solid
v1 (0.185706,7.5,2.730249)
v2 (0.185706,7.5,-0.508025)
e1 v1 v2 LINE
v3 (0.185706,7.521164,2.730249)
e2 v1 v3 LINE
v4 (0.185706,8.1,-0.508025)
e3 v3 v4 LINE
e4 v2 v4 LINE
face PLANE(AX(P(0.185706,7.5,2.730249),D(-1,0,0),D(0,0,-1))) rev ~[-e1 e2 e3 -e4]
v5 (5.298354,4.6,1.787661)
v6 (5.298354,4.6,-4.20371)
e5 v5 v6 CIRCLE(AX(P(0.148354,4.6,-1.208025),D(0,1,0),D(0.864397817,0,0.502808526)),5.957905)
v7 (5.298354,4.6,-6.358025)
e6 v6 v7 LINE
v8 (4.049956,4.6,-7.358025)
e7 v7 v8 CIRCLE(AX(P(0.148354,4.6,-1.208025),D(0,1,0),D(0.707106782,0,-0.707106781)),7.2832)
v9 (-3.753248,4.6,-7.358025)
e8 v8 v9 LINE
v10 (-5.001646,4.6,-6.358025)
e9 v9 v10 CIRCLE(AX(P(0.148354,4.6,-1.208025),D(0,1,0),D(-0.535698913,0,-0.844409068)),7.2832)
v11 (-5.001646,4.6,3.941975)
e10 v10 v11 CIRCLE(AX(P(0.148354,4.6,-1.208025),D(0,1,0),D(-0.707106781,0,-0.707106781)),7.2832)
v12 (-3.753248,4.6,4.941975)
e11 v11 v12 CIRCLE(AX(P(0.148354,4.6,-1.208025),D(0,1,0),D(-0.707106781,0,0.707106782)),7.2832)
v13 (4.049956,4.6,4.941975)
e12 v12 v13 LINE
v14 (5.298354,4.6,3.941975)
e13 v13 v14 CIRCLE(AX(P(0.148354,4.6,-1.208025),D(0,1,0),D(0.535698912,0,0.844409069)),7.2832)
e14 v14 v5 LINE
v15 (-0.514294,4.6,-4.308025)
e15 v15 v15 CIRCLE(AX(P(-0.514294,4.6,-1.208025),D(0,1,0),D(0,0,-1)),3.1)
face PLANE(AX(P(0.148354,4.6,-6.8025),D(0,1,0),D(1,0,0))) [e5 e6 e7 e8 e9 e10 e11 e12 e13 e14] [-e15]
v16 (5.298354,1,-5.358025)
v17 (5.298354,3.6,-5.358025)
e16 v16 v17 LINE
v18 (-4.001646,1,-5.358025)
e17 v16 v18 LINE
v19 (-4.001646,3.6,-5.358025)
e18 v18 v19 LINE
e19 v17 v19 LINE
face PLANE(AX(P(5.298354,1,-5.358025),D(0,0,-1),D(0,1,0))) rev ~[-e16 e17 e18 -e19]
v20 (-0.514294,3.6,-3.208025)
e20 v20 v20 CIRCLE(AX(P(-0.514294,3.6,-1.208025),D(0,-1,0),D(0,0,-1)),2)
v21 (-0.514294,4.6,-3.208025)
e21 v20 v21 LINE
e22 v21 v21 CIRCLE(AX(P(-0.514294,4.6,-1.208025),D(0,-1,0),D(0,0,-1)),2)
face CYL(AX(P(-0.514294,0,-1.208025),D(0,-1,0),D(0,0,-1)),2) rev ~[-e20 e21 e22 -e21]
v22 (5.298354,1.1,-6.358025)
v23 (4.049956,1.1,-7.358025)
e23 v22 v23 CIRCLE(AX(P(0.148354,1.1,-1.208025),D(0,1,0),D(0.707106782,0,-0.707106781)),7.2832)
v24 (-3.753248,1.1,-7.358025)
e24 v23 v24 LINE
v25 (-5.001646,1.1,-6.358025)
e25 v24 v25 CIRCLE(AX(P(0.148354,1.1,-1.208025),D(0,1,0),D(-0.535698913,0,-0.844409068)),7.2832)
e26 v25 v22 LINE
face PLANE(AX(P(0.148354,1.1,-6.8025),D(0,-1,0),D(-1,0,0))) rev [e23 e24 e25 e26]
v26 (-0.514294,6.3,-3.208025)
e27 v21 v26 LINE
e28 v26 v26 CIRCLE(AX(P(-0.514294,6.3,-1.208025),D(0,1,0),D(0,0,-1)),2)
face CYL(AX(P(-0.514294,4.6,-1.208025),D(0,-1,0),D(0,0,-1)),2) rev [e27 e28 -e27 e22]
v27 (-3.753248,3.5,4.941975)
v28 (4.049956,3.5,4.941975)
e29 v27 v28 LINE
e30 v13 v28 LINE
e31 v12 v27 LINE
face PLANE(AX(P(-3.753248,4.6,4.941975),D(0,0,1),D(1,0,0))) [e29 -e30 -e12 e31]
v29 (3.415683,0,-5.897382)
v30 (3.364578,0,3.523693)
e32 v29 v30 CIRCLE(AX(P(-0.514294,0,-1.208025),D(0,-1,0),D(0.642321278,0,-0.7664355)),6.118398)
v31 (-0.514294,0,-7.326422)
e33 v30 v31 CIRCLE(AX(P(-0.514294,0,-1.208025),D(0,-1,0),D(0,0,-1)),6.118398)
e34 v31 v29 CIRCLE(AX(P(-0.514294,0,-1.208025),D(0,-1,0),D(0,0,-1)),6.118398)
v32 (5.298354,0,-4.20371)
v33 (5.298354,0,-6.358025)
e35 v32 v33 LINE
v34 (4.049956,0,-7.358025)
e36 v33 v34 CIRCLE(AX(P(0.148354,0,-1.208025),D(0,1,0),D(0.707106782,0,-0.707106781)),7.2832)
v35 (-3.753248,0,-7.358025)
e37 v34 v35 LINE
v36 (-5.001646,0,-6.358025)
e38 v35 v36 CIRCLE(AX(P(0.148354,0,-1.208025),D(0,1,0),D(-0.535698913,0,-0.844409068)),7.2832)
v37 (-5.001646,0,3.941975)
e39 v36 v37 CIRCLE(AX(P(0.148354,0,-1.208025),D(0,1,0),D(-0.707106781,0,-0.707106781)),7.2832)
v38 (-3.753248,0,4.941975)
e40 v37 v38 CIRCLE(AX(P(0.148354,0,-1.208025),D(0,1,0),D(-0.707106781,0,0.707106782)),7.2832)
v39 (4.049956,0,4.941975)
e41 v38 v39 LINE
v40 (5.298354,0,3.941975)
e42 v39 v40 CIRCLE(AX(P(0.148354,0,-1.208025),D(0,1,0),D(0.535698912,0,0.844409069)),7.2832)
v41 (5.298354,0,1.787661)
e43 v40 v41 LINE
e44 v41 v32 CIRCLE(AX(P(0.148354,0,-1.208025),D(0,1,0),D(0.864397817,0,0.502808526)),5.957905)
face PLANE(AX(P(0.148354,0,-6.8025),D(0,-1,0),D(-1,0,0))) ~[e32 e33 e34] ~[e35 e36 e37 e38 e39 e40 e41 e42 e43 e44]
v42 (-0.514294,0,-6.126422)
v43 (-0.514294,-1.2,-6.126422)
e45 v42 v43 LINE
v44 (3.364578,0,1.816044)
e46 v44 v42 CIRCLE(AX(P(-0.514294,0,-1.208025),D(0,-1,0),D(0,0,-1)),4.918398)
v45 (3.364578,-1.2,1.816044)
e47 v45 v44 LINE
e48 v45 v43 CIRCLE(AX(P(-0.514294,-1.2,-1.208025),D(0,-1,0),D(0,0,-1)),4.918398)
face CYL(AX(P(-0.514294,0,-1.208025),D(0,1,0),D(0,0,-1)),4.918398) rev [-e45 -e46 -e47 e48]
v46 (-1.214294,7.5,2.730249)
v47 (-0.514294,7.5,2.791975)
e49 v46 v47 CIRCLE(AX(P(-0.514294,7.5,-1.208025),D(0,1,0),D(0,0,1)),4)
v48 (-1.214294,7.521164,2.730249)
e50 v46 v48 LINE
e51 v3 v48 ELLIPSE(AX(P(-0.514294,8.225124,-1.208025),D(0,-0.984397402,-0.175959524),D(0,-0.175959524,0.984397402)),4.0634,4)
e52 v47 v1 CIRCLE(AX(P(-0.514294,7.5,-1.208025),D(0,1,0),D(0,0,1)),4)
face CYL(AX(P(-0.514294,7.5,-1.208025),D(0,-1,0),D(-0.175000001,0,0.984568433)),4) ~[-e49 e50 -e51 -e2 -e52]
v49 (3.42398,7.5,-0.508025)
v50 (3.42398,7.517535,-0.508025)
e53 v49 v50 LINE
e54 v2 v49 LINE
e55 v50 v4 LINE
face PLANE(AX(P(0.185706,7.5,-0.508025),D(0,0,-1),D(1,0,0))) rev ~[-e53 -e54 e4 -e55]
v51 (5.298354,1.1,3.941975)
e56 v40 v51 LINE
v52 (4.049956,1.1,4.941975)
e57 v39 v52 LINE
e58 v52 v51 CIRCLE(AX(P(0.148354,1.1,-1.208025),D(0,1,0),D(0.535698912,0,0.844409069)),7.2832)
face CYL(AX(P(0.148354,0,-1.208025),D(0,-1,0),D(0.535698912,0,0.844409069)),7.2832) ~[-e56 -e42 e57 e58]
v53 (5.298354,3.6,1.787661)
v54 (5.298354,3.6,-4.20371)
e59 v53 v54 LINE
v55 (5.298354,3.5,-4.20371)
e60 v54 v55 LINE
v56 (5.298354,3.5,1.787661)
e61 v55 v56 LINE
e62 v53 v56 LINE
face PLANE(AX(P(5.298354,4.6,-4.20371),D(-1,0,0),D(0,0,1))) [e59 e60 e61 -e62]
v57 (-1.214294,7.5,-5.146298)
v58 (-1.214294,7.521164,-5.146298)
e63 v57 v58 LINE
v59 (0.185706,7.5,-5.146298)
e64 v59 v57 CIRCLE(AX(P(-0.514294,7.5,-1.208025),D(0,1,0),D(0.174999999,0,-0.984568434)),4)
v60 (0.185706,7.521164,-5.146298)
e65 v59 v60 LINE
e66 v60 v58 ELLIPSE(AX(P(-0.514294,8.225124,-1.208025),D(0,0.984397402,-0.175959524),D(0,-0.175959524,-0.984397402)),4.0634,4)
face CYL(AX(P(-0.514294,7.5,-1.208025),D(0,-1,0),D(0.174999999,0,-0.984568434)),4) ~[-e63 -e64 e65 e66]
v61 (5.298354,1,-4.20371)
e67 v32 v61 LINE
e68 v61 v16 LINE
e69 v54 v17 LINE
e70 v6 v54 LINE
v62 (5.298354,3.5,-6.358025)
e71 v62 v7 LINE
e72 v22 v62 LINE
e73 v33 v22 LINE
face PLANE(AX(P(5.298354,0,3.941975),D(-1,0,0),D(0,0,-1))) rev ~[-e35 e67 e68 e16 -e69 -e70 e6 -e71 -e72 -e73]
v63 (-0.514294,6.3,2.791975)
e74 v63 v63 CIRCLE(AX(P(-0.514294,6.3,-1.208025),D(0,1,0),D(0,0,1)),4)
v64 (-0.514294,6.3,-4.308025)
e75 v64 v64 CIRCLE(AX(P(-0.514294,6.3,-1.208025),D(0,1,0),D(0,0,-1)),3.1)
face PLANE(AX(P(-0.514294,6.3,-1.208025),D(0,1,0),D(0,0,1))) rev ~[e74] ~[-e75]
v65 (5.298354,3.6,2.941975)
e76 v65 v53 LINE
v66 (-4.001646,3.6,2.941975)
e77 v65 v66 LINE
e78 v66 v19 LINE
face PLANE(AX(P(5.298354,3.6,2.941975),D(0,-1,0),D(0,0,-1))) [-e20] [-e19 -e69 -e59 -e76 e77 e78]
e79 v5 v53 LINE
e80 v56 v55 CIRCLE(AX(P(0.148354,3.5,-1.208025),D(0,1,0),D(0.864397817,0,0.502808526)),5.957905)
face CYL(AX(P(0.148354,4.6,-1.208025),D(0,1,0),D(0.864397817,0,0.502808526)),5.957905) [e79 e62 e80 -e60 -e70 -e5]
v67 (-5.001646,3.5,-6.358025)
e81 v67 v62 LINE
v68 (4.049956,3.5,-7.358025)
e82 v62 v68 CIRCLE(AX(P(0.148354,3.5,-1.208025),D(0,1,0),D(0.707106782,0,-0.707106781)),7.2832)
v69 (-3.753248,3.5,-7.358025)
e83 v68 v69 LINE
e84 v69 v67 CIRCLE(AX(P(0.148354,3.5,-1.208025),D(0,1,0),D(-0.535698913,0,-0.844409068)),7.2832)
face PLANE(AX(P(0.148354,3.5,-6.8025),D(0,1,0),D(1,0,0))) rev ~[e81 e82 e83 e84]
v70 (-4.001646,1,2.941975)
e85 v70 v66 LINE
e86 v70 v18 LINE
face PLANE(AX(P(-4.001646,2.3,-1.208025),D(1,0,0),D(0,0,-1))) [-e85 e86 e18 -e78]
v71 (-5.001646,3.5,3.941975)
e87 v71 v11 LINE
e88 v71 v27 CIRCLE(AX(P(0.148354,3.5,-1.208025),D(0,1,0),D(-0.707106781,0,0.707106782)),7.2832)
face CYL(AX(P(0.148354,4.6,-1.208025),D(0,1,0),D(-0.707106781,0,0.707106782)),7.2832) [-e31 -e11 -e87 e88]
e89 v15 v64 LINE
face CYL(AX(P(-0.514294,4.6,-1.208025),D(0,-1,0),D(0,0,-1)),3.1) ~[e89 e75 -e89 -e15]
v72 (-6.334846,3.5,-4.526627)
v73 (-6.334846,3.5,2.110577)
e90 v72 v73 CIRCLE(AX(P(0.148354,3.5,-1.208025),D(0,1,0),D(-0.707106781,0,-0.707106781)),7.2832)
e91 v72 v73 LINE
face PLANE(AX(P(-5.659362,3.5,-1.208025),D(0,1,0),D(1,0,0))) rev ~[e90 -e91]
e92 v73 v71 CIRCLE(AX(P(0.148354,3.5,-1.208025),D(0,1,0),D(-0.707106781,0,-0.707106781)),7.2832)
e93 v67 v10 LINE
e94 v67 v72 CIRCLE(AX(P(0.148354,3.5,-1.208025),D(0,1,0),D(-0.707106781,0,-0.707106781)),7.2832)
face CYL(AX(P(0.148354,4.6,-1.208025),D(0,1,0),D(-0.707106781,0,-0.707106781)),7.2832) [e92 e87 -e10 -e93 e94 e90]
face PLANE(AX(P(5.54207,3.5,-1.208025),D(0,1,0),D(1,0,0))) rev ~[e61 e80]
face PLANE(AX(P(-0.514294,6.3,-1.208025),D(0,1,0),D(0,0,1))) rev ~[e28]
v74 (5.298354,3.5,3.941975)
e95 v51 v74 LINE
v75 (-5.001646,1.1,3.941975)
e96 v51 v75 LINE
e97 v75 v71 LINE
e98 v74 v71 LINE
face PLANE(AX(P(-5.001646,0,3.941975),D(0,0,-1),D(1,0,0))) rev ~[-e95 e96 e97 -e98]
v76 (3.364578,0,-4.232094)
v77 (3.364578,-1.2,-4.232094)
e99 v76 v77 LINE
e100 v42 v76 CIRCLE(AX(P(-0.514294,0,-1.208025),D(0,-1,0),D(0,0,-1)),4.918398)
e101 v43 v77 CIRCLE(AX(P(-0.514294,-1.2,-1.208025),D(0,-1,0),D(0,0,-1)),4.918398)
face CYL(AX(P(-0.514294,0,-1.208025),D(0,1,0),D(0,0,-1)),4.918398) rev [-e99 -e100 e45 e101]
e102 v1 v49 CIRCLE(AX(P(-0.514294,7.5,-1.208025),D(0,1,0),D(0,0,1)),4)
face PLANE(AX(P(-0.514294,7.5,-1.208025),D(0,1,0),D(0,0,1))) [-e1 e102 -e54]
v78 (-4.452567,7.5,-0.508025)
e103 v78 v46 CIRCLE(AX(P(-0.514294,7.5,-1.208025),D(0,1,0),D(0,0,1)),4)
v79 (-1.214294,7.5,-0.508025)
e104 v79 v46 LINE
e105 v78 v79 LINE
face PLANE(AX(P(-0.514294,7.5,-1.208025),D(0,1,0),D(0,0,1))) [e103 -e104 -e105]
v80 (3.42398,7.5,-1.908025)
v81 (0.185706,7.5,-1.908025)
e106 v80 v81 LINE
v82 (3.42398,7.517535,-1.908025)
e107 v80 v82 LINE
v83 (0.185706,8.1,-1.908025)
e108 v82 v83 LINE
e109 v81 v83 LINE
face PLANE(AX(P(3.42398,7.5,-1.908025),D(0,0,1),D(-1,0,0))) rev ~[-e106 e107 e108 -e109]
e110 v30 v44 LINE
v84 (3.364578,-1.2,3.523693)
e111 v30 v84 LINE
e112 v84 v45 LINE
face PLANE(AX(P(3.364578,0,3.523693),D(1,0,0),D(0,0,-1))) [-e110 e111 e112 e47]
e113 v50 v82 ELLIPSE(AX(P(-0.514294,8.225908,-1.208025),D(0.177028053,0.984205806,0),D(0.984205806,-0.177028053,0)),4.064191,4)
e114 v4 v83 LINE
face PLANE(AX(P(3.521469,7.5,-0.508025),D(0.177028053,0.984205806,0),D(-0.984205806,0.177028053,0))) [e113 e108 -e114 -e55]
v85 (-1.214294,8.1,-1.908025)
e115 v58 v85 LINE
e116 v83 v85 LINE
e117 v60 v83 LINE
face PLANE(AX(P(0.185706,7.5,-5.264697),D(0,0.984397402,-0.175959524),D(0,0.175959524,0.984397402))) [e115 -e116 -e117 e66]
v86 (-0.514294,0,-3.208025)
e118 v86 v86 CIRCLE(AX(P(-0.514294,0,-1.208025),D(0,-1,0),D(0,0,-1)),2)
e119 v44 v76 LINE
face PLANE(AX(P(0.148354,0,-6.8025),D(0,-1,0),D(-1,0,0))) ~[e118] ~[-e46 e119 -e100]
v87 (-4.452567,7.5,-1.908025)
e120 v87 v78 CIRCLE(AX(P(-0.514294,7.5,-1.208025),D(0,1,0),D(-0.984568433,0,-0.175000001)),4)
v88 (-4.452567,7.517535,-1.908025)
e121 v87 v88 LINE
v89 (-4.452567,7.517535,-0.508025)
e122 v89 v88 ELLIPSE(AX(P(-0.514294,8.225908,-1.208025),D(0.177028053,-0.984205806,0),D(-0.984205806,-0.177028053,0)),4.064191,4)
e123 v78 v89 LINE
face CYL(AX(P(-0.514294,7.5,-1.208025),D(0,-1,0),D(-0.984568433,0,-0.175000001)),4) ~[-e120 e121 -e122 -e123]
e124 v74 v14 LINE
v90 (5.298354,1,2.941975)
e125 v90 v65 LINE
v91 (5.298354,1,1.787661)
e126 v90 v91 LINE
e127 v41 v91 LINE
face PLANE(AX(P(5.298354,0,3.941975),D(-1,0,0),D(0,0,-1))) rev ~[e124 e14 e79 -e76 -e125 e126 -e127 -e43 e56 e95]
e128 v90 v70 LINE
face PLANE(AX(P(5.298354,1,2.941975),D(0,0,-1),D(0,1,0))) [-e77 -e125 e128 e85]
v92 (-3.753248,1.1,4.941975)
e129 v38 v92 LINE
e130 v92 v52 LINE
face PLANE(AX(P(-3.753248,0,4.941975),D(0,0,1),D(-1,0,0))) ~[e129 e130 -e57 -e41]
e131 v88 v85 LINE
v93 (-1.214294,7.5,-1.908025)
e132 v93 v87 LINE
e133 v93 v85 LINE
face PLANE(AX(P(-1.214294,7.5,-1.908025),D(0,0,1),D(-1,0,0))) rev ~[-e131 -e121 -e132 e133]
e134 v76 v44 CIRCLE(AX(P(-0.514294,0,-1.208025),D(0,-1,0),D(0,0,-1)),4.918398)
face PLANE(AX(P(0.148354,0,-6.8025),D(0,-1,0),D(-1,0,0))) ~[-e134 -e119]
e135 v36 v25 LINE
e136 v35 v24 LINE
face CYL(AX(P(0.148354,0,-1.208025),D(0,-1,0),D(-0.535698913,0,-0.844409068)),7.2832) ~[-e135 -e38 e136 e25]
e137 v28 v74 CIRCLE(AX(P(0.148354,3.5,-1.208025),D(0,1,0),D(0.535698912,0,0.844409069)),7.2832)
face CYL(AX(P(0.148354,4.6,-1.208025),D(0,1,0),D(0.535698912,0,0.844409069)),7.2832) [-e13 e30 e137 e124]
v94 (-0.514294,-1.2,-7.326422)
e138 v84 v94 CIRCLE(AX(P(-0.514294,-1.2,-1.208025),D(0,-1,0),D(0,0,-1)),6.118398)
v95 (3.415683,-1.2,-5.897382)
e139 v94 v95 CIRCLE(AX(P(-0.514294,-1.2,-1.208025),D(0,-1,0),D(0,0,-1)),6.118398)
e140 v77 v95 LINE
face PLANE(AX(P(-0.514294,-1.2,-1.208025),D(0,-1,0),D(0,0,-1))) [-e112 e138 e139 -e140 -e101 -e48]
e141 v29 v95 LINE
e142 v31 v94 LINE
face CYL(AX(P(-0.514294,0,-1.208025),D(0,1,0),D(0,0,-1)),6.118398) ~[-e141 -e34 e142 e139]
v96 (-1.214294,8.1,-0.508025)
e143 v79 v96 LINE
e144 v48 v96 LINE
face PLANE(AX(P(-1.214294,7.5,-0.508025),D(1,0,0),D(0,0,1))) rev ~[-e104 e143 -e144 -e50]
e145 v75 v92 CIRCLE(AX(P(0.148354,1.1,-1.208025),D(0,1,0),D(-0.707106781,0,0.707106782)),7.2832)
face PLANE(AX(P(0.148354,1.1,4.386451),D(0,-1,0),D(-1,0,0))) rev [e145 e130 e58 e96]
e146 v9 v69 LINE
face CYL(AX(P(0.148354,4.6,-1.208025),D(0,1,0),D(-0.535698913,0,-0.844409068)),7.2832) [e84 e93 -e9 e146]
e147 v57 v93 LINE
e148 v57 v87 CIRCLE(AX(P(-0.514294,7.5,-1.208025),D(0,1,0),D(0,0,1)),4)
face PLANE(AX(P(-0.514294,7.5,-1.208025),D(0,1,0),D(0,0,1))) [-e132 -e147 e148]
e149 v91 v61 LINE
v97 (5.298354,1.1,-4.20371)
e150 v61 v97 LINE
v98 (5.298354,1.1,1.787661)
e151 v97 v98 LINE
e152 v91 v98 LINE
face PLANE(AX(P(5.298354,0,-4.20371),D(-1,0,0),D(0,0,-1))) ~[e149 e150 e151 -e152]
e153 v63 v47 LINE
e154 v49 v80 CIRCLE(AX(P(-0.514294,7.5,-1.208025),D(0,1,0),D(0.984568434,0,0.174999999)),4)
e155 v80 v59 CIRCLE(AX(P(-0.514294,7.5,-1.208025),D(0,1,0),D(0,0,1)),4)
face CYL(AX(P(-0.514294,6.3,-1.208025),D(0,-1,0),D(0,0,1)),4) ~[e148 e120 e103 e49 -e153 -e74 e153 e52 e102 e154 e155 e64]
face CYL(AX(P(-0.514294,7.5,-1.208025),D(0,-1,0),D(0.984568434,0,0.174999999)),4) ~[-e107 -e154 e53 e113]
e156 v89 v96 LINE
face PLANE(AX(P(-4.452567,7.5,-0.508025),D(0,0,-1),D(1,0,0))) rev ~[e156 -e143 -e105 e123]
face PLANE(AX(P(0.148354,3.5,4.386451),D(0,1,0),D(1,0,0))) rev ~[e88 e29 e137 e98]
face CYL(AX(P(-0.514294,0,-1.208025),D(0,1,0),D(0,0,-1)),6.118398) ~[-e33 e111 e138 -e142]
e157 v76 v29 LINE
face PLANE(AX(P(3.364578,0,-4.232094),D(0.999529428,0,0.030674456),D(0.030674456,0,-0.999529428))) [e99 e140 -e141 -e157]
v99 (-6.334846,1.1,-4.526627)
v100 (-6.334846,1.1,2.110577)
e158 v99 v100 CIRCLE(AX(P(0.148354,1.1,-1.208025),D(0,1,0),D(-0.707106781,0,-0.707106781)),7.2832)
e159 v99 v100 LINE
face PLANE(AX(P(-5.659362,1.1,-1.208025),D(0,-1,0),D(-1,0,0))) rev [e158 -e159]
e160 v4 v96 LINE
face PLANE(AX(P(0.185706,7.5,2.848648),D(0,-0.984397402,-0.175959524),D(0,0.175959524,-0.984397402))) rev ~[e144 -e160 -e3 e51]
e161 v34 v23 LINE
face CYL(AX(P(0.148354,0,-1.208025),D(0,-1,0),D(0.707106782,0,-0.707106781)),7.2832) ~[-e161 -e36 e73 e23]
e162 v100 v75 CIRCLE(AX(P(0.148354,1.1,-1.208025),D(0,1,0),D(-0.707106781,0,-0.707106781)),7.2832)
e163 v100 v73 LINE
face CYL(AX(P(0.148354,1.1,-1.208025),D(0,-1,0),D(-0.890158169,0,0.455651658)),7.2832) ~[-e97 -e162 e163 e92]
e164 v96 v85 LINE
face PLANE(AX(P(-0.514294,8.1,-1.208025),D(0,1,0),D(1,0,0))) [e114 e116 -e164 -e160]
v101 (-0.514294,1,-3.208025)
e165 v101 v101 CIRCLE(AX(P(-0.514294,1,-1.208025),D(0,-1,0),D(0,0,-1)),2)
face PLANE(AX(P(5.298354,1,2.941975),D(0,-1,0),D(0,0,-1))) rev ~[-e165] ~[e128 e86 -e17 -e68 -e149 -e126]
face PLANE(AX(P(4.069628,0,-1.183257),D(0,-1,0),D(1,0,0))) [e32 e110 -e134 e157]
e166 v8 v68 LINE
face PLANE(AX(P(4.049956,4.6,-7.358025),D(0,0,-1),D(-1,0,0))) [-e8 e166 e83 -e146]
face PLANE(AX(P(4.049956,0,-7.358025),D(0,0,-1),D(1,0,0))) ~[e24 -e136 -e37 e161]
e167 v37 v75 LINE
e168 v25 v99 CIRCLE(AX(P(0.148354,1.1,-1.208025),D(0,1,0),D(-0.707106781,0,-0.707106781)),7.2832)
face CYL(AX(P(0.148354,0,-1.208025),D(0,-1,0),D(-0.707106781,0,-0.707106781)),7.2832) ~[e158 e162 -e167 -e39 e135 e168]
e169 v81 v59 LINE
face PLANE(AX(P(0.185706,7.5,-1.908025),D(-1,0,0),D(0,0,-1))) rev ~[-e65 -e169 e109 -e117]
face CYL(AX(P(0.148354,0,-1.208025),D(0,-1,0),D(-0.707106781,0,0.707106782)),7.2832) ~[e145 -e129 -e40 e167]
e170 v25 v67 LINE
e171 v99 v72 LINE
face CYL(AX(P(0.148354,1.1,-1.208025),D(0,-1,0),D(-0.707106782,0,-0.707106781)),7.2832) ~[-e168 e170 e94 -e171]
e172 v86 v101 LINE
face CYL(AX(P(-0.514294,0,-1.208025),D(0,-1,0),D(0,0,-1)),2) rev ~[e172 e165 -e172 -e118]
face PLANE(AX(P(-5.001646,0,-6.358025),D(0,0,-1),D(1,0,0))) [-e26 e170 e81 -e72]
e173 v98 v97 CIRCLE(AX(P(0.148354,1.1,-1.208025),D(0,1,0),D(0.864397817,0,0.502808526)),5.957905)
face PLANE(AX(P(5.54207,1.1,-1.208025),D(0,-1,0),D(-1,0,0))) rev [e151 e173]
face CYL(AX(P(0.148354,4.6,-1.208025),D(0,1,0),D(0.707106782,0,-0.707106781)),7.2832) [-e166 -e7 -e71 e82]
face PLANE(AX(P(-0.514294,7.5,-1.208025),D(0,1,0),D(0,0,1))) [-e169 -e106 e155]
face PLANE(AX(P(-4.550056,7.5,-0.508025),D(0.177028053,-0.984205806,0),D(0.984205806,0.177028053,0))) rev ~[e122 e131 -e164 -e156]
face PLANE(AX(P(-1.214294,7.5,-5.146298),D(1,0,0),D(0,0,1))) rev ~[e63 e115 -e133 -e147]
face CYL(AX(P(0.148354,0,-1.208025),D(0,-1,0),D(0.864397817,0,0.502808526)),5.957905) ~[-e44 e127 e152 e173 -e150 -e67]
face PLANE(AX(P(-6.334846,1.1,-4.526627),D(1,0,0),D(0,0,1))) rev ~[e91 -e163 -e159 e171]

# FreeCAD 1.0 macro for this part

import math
import FreeCAD as App
import Part
import Sketcher
from FreeCAD import Vector
Q = App.Units.Quantity

doc = App.newDocument("Part")
body = doc.addObject("PartDesign::Body", "Body")

sketch1 = body.newObject("Sketcher::SketchObject", "Sketch")
sketch1.AttachmentSupport = (doc.getObject("XZ_Plane"), [""])
sketch1.MapMode = "FlatFace"
sketch1.addGeometry(Part.LineSegment(Vector(-5, -6, 0), Vector(-5, 4, 0)), False)
sketch1.addGeometry(Part.LineSegment(Vector(-5, 4, 0), Vector(5, 4, 0)), False)
sketch1.addGeometry(Part.LineSegment(Vector(5, 4, 0), Vector(5, -6, 0)), False)
sketch1.addGeometry(Part.LineSegment(Vector(5, -6, 0), Vector(-5, -6, 0)), False)
sketch1.addConstraint(Sketcher.Constraint("Coincident", 0, 2, 1, 1))
sketch1.addConstraint(Sketcher.Constraint("Coincident", 1, 2, 2, 1))
sketch1.addConstraint(Sketcher.Constraint("Coincident", 2, 2, 3, 1))
sketch1.addConstraint(Sketcher.Constraint("Coincident", 3, 2, 0, 1))
sketch1.addConstraint(Sketcher.Constraint("Vertical", 0))
sketch1.addConstraint(Sketcher.Constraint("Horizontal", 1))
sketch1.addConstraint(Sketcher.Constraint("Vertical", 2))
sketch1.addConstraint(Sketcher.Constraint("Horizontal", 3))
sketch1.addConstraint(Sketcher.Constraint("Equal", 3, 0))
sketch1.addConstraint(Sketcher.Constraint("DistanceX", 1, 1, 1, 2, Q("10.3 mm")))
sketch1.addConstraint(Sketcher.Constraint("DistanceX", 0, 2, -1, 1, Q("5.001646 mm")))
sketch1.addConstraint(Sketcher.Constraint("DistanceY", -1, 1, 0, 2, Q("3.941975 mm")))
pad1 = body.newObject("PartDesign::Pad", "Pad")
pad1.Profile = sketch1
pad1.Length = 4.6
pad1.Reversed = True

sketch2 = body.newObject("Sketcher::SketchObject", "Sketch001")
sketch2.AttachmentSupport = (doc.getObject("YZ_Plane"), [""])
sketch2.MapMode = "FlatFace"
sketch2.AttachmentOffset = App.Placement(Vector(0, 0, 5.298354), App.Rotation())
sketch2.addGeometry(Part.LineSegment(Vector(3.6, 2.9, 0), Vector(1, 2.9, 0)), False)
sketch2.addGeometry(Part.LineSegment(Vector(1, 2.9, 0), Vector(1, -5.4, 0)), False)
sketch2.addGeometry(Part.LineSegment(Vector(1, -5.4, 0), Vector(3.6, -5.4, 0)), False)
sketch2.addGeometry(Part.LineSegment(Vector(3.6, -5.4, 0), Vector(3.6, 2.9, 0)), False)
sketch2.addConstraint(Sketcher.Constraint("Coincident", 0, 2, 1, 1))
sketch2.addConstraint(Sketcher.Constraint("Coincident", 1, 2, 2, 1))
sketch2.addConstraint(Sketcher.Constraint("Coincident", 2, 2, 3, 1))
sketch2.addConstraint(Sketcher.Constraint("Coincident", 3, 2, 0, 1))
sketch2.addConstraint(Sketcher.Constraint("Horizontal", 0))
sketch2.addConstraint(Sketcher.Constraint("Vertical", 1))
sketch2.addConstraint(Sketcher.Constraint("Horizontal", 2))
sketch2.addConstraint(Sketcher.Constraint("Vertical", 3))
sketch2.addConstraint(Sketcher.Constraint("DistanceX", 0, 2, 0, 1, Q("2.6 mm")))
sketch2.addConstraint(Sketcher.Constraint("DistanceY", 1, 2, 1, 1, Q("8.3 mm")))
sketch2.addConstraint(Sketcher.Constraint("DistanceX", -1, 1, 0, 2, Q("1 mm")))
sketch2.addConstraint(Sketcher.Constraint("DistanceY", -1, 1, 0, 2, Q("2.941975 mm")))
pocket1 = body.newObject("PartDesign::Pocket", "Pocket")
pocket1.Profile = sketch2
pocket1.Length = 9.3

sketch3 = body.newObject("Sketcher::SketchObject", "Sketch002")
sketch3.AttachmentSupport = (doc.getObject("XZ_Plane"), [""])
sketch3.MapMode = "FlatFace"
sketch3.AttachmentOffset = App.Placement(Vector(0, 0, -4.6), App.Rotation())
sketch3.addGeometry(Part.LineSegment(Vector(4, -7.4, 0), Vector(-3.8, -7.4, 0)), False)
sketch3.addGeometry(Part.ArcOfCircle(Part.Circle(Vector(0.1, -1.2, 0), Vector(0, 0, 1), 7.3), math.radians(-135), math.radians(-122.39)), False)
sketch3.addGeometry(Part.LineSegment(Vector(-5, -6.4, 0), Vector(5.3, -6.4, 0)), False)
sketch3.addGeometry(Part.ArcOfCircle(Part.Circle(Vector(0.1, -1.2, 0), Vector(0, 0, 1), 7.3), math.radians(-57.61), math.radians(-45)), False)
sketch3.addGeometry(Part.LineSegment(Vector(-5, 3.9, 0), Vector(-5, -6.4, 0)), False)
sketch3.addGeometry(Part.ArcOfCircle(Part.Circle(Vector(0.1, -1.2, 0), Vector(0, 0, 1), 7.3), math.radians(135), math.radians(225)), False)
sketch3.addGeometry(Part.LineSegment(Vector(5.3, 3.9, 0), Vector(-5, 3.9, 0)), False)
sketch3.addGeometry(Part.ArcOfCircle(Part.Circle(Vector(0.1, -1.2, 0), Vector(0, 0, 1), 7.3), math.radians(122.39), math.radians(135)), False)
sketch3.addGeometry(Part.LineSegment(Vector(-3.8, 4.9, 0), Vector(4, 4.9, 0)), False)
sketch3.addGeometry(Part.ArcOfCircle(Part.Circle(Vector(0.1, -1.2, 0), Vector(0, 0, 1), 7.3), math.radians(45), math.radians(57.61)), False)
sketch3.addGeometry(Part.ArcOfCircle(Part.Circle(Vector(0.1, -1.2, 0), Vector(0, 0, 1), 6), math.radians(-30), math.radians(30)), False)
sketch3.addGeometry(Part.LineSegment(Vector(5.3, -4.2, 0), Vector(5.3, 1.8, 0)), False)
sketch3.addConstraint(Sketcher.Constraint("Coincident", 0, 2, 1, 2))
sketch3.addConstraint(Sketcher.Constraint("Coincident", 1, 1, 2, 1))
sketch3.addConstraint(Sketcher.Constraint("Coincident", 2, 2, 3, 2))
sketch3.addConstraint(Sketcher.Constraint("Coincident", 3, 1, 0, 1))
sketch3.addConstraint(Sketcher.Constraint("Coincident", 4, 1, 5, 1))
sketch3.addConstraint(Sketcher.Constraint("Coincident", 5, 2, 4, 2))
sketch3.addConstraint(Sketcher.Constraint("Coincident", 6, 2, 7, 2))
sketch3.addConstraint(Sketcher.Constraint("Coincident", 7, 1, 8, 1))
sketch3.addConstraint(Sketcher.Constraint("Coincident", 8, 2, 9, 2))
sketch3.addConstraint(Sketcher.Constraint("Coincident", 9, 1, 6, 1))
sketch3.addConstraint(Sketcher.Constraint("Coincident", 10, 1, 11, 1))
sketch3.addConstraint(Sketcher.Constraint("Coincident", 11, 2, 10, 2))
sketch3.addConstraint(Sketcher.Constraint("Horizontal", 0))
sketch3.addConstraint(Sketcher.Constraint("Horizontal", 2))
sketch3.addConstraint(Sketcher.Constraint("Vertical", 4))
sketch3.addConstraint(Sketcher.Constraint("Horizontal", 6))
sketch3.addConstraint(Sketcher.Constraint("Horizontal", 8))
sketch3.addConstraint(Sketcher.Constraint("Vertical", 11))
sketch3.addConstraint(Sketcher.Constraint("Coincident", 3, 3, 1, 3))
sketch3.addConstraint(Sketcher.Constraint("Coincident", 5, 3, 1, 3))
sketch3.addConstraint(Sketcher.Constraint("Coincident", 7, 3, 1, 3))
sketch3.addConstraint(Sketcher.Constraint("Coincident", 9, 3, 1, 3))
sketch3.addConstraint(Sketcher.Constraint("Coincident", 10, 3, 1, 3))
sketch3.addConstraint(Sketcher.Constraint("Coincident", 5, 2, 1, 1))
sketch3.addConstraint(Sketcher.Constraint("Coincident", 6, 2, 4, 1))
sketch3.addConstraint(Sketcher.Constraint("Equal", 1, 3))
sketch3.addConstraint(Sketcher.Constraint("Equal", 7, 9))
sketch3.addConstraint(Sketcher.Constraint("Vertical", 0, 2, 7, 1))
sketch3.addConstraint(Sketcher.Constraint("Vertical", 9, 1, 10, 1))
sketch3.addConstraint(Sketcher.Constraint("Equal", 6, 4))
sketch3.addConstraint(Sketcher.Constraint("DistanceX", 2, 1, 2, 2, Q("10.3 mm")))
sketch3.addConstraint(Sketcher.Constraint("DistanceY", 0, 2, 1, 1, Q("1 mm")))
sketch3.addConstraint(Sketcher.Constraint("Radius", 10, Q("5.957905 mm")))
sketch3.addConstraint(Sketcher.Constraint("DistanceX", 0, 2, -1, 1, Q("3.753248 mm")))
sketch3.addConstraint(Sketcher.Constraint("DistanceY", 10, 1, -1, 1, Q("4.20371 mm")))
pad2 = body.newObject("PartDesign::Pad", "Pad001")
pad2.Profile = sketch3
pad2.Length = 1.1
doc.recompute()

datumplane = body.newObject("PartDesign::Plane", "DatumPlane")
datumplane.AttachmentSupport = (doc.getObject("XZ_Plane"), [""])
datumplane.MapMode = "FlatFace"
datumplane.AttachmentOffset = App.Placement(Vector(0, 0, -2.3), App.Rotation())
mirrored = body.newObject("PartDesign::Mirrored", "Mirrored")
mirrored.Originals = [pocket1, pad2]
mirrored.MirrorPlane = (datumplane, [""])
body.Tip = mirrored

sketch4 = body.newObject("Sketcher::SketchObject", "Sketch003")
sketch4.AttachmentSupport = (doc.getObject("XZ_Plane"), [""])
sketch4.MapMode = "FlatFace"
sketch4.AttachmentOffset = App.Placement(Vector(0, 0, -1.1), App.Rotation())
sketch4.addGeometry(Part.LineSegment(Vector(-6.3, -4.5, 0), Vector(-6.3, 2.1, 0)), False)
sketch4.addGeometry(Part.ArcOfCircle(Part.Circle(Vector(0.1, -1.2, 0), Vector(0, 0, 1), 7.3), math.radians(135), math.radians(152.89)), False)
sketch4.addGeometry(Part.LineSegment(Vector(-5, 3.9, 0), Vector(-5, -6.4, 0)), False)
sketch4.addGeometry(Part.ArcOfCircle(Part.Circle(Vector(0.1, -1.2, 0), Vector(0, 0, 1), 7.3), math.radians(-152.89), math.radians(-135)), False)
sketch4.addConstraint(Sketcher.Constraint("Coincident", 0, 2, 1, 2))
sketch4.addConstraint(Sketcher.Constraint("Coincident", 1, 1, 2, 1))
sketch4.addConstraint(Sketcher.Constraint("Coincident", 2, 2, 3, 2))
sketch4.addConstraint(Sketcher.Constraint("Coincident", 3, 1, 0, 1))
sketch4.addConstraint(Sketcher.Constraint("Vertical", 0))
sketch4.addConstraint(Sketcher.Constraint("Vertical", 2))
sketch4.addConstraint(Sketcher.Constraint("Coincident", 3, 3, 1, 3))
sketch4.addConstraint(Sketcher.Constraint("Equal", 1, 3))
sketch4.addConstraint(Sketcher.Constraint("DistanceY", 2, 2, 2, 1, Q("10.3 mm")))
sketch4.addConstraint(Sketcher.Constraint("Radius", 1, Q("7.2832 mm")))
sketch4.addConstraint(Sketcher.Constraint("DistanceX", 0, 2, 3, 3, Q("6.4832 mm")))
sketch4.addConstraint(Sketcher.Constraint("DistanceX", -1, 1, 1, 3, Q("0.148354 mm")))
sketch4.addConstraint(Sketcher.Constraint("DistanceY", 1, 3, -1, 1, Q("1.208025 mm")))
pad3 = body.newObject("PartDesign::Pad", "Pad002")
pad3.Profile = sketch4
pad3.Type = "UpToFirst"
pad3.Reversed = True

sketch5 = body.newObject("Sketcher::SketchObject", "Sketch004")
sketch5.AttachmentSupport = (doc.getObject("XZ_Plane"), [""])
sketch5.MapMode = "FlatFace"
sketch5.addGeometry(Part.Circle(Vector(-0.5, -1.2, 0), Vector(0, 0, 1), 2), False)
sketch5.addConstraint(Sketcher.Constraint("Diameter", 0, Q("4 mm")))
sketch5.addConstraint(Sketcher.Constraint("DistanceX", 0, 3, -1, 1, Q("0.514294 mm")))
sketch5.addConstraint(Sketcher.Constraint("DistanceY", 0, 3, -1, 1, Q("1.208025 mm")))
pocket2 = body.newObject("PartDesign::Pocket", "Pocket001")
pocket2.Profile = sketch5
pocket2.Type = "ThroughAll"

sketch6 = body.newObject("Sketcher::SketchObject", "Sketch005")
sketch6.AttachmentSupport = (doc.getObject("XZ_Plane"), [""])
sketch6.MapMode = "FlatFace"
sketch6.AttachmentOffset = App.Placement(Vector(0, 0, -4.6), App.Rotation())
sketch6.addGeometry(Part.Circle(Vector(-0.5, -1.2, 0), Vector(0, 0, 1), 3.1), False)
sketch6.addGeometry(Part.Circle(Vector(-0.5, -1.2, 0), Vector(0, 0, 1), 2), False)
sketch6.addConstraint(Sketcher.Constraint("Coincident", 1, 3, 0, 3))
sketch6.addConstraint(Sketcher.Constraint("Diameter", 1, Q("4 mm")))
sketch6.addConstraint(Sketcher.Constraint("Diameter", 0, Q("6.2 mm")))
sketch6.addConstraint(Sketcher.Constraint("DistanceX", 0, 3, -1, 1, Q("0.514294 mm")))
sketch6.addConstraint(Sketcher.Constraint("DistanceY", 0, 3, -1, 1, Q("1.208025 mm")))
pad4 = body.newObject("PartDesign::Pad", "Pad003")
pad4.Profile = sketch6
pad4.Length = 1.7
pad4.Reversed = True

sketch7 = body.newObject("Sketcher::SketchObject", "Sketch006")
sketch7.AttachmentSupport = (doc.getObject("XZ_Plane"), [""])
sketch7.MapMode = "FlatFace"
sketch7.AttachmentOffset = App.Placement(Vector(0, 0, -6.3), App.Rotation())
sketch7.addGeometry(Part.Circle(Vector(-0.5, -1.2, 0), Vector(0, 0, 1), 4), False)
sketch7.addConstraint(Sketcher.Constraint("Diameter", 0, Q("8 mm")))
sketch7.addConstraint(Sketcher.Constraint("DistanceX", 0, 3, -1, 1, Q("0.514294 mm")))
sketch7.addConstraint(Sketcher.Constraint("DistanceY", 0, 3, -1, 1, Q("1.208025 mm")))
pad5 = body.newObject("PartDesign::Pad", "Pad004")
pad5.Profile = sketch7
pad5.Length = 1.2
pad5.Reversed = True

sketch8 = body.newObject("Sketcher::SketchObject", "Sketch007")
sketch8.AttachmentSupport = (doc.getObject("XZ_Plane"), [""])
sketch8.MapMode = "FlatFace"
sketch8.AttachmentOffset = App.Placement(Vector(0, 0, -7.5), App.Rotation())
sketch8.addGeometry(Part.LineSegment(Vector(-1.2, -5.1, 0), Vector(-1.2, -1.9, 0)), False)
sketch8.addGeometry(Part.LineSegment(Vector(-1.2, -1.9, 0), Vector(-4.5, -1.9, 0)), False)
sketch8.addGeometry(Part.ArcOfCircle(Part.Circle(Vector(-0.5, -1.2, 0), Vector(0, 0, 1), 4), math.radians(170), math.radians(190)), False)
sketch8.addGeometry(Part.LineSegment(Vector(-4.5, -0.5, 0), Vector(-1.2, -0.5, 0)), False)
sketch8.addGeometry(Part.LineSegment(Vector(-1.2, -0.5, 0), Vector(-1.2, 2.7, 0)), False)
sketch8.addGeometry(Part.ArcOfCircle(Part.Circle(Vector(-0.5, -1.2, 0), Vector(0, 0, 1), 4), math.radians(80), math.radians(100)), False)
sketch8.addGeometry(Part.LineSegment(Vector(0.2, 2.7, 0), Vector(0.2, -0.5, 0)), False)
sketch8.addGeometry(Part.LineSegment(Vector(0.2, -0.5, 0), Vector(3.4, -0.5, 0)), False)
sketch8.addGeometry(Part.ArcOfCircle(Part.Circle(Vector(-0.5, -1.2, 0), Vector(0, 0, 1), 4), math.radians(-10), math.radians(10)), False)
sketch8.addGeometry(Part.LineSegment(Vector(3.4, -1.9, 0), Vector(0.2, -1.9, 0)), False)
sketch8.addGeometry(Part.LineSegment(Vector(0.2, -1.9, 0), Vector(0.2, -5.1, 0)), False)
sketch8.addGeometry(Part.ArcOfCircle(Part.Circle(Vector(-0.5, -1.2, 0), Vector(0, 0, 1), 4), math.radians(-100), math.radians(-80)), False)
sketch8.addConstraint(Sketcher.Constraint("Coincident", 0, 2, 1, 1))
sketch8.addConstraint(Sketcher.Constraint("Coincident", 1, 2, 2, 2))
sketch8.addConstraint(Sketcher.Constraint("Coincident", 2, 1, 3, 1))
sketch8.addConstraint(Sketcher.Constraint("Coincident", 3, 2, 4, 1))
sketch8.addConstraint(Sketcher.Constraint("Coincident", 4, 2, 5, 2))
sketch8.addConstraint(Sketcher.Constraint("Coincident", 5, 1, 6, 1))
sketch8.addConstraint(Sketcher.Constraint("Coincident", 6, 2, 7, 1))
sketch8.addConstraint(Sketcher.Constraint("Coincident", 7, 2, 8, 2))
sketch8.addConstraint(Sketcher.Constraint("Coincident", 8, 1, 9, 1))
sketch8.addConstraint(Sketcher.Constraint("Coincident", 9, 2, 10, 1))
sketch8.addConstraint(Sketcher.Constraint("Coincident", 10, 2, 11, 2))
sketch8.addConstraint(Sketcher.Constraint("Coincident", 11, 1, 0, 1))
sketch8.addConstraint(Sketcher.Constraint("Vertical", 0))
sketch8.addConstraint(Sketcher.Constraint("Horizontal", 1))
sketch8.addConstraint(Sketcher.Constraint("Horizontal", 3))
sketch8.addConstraint(Sketcher.Constraint("Vertical", 4))
sketch8.addConstraint(Sketcher.Constraint("Vertical", 6))
sketch8.addConstraint(Sketcher.Constraint("Horizontal", 7))
sketch8.addConstraint(Sketcher.Constraint("Horizontal", 9))
sketch8.addConstraint(Sketcher.Constraint("Vertical", 10))
sketch8.addConstraint(Sketcher.Constraint("Coincident", 5, 3, 2, 3))
sketch8.addConstraint(Sketcher.Constraint("Coincident", 8, 3, 2, 3))
sketch8.addConstraint(Sketcher.Constraint("Coincident", 11, 3, 2, 3))
sketch8.addConstraint(Sketcher.Constraint("Equal", 2, 5))
sketch8.addConstraint(Sketcher.Constraint("Equal", 5, 8))
sketch8.addConstraint(Sketcher.Constraint("Equal", 8, 11))
sketch8.addConstraint(Sketcher.Constraint("Horizontal", 4, 2, 5, 1))
sketch8.addConstraint(Sketcher.Constraint("Horizontal", 3, 2, 6, 2))
sketch8.addConstraint(Sketcher.Constraint("Horizontal", 1, 2, 8, 1))
sketch8.addConstraint(Sketcher.Constraint("Horizontal", 10, 2, 11, 1))
sketch8.addConstraint(Sketcher.Constraint("Vertical", 1, 2, 2, 1))
sketch8.addConstraint(Sketcher.Constraint("Vertical", 0, 2, 3, 2))
sketch8.addConstraint(Sketcher.Constraint("Equal", 9, 0))
sketch8.addConstraint(Sketcher.Constraint("Radius", 2, Q("4 mm")))
sketch8.addConstraint(Sketcher.Constraint("DistanceX", 0, 2, 2, 3, Q("0.7 mm")))
sketch8.addConstraint(Sketcher.Constraint("DistanceY", 10, 2, -1, 1, Q("5.146298 mm")))
sketch8.addConstraint(Sketcher.Constraint("DistanceX", -1, 1, 7, 2, Q("3.42398 mm")))
pad6 = body.newObject("PartDesign::Pad", "Pad005")
pad6.Profile = sketch8
pad6.Length = 0.6
pad6.Reversed = True

sketch9 = body.newObject("Sketcher::SketchObject", "Sketch008")
sketch9.AttachmentSupport = (doc.getObject("YZ_Plane"), [""])
sketch9.MapMode = "FlatFace"
sketch9.AttachmentOffset = App.Placement(Vector(0, 0, 0.185706), App.Rotation())
sketch9.addGeometry(Part.LineSegment(Vector(7.5, 2.8, 0), Vector(8.1, -0.5, 0)), False)
sketch9.addGeometry(Part.LineSegment(Vector(8.1, -0.5, 0), Vector(8.1, 2.8, 0)), False)
sketch9.addGeometry(Part.LineSegment(Vector(8.1, 2.8, 0), Vector(7.5, 2.8, 0)), False)
sketch9.addGeometry(Part.LineSegment(Vector(8.1, -1.9, 0), Vector(7.5, -5.3, 0)), False)
sketch9.addGeometry(Part.LineSegment(Vector(7.5, -5.3, 0), Vector(8.1, -5.3, 0)), False)
sketch9.addGeometry(Part.LineSegment(Vector(8.1, -5.3, 0), Vector(8.1, -1.9, 0)), False)
sketch9.addConstraint(Sketcher.Constraint("Coincident", 0, 2, 1, 1))
sketch9.addConstraint(Sketcher.Constraint("Coincident", 1, 2, 2, 1))
sketch9.addConstraint(Sketcher.Constraint("Coincident", 2, 2, 0, 1))
sketch9.addConstraint(Sketcher.Constraint("Coincident", 3, 2, 4, 1))
sketch9.addConstraint(Sketcher.Constraint("Coincident", 4, 2, 5, 1))
sketch9.addConstraint(Sketcher.Constraint("Coincident", 5, 2, 3, 1))
sketch9.addConstraint(Sketcher.Constraint("Vertical", 1))
sketch9.addConstraint(Sketcher.Constraint("Horizontal", 2))
sketch9.addConstraint(Sketcher.Constraint("Horizontal", 4))
sketch9.addConstraint(Sketcher.Constraint("Vertical", 5))
sketch9.addConstraint(Sketcher.Constraint("Vertical", 2, 2, 3, 2))
sketch9.addConstraint(Sketcher.Constraint("Vertical", 1, 2, 4, 2))
sketch9.addConstraint(Sketcher.Constraint("Equal", 1, 5))
sketch9.addConstraint(Sketcher.Constraint("DistanceX", 2, 2, 2, 1, Q("0.6 mm")))
sketch9.addConstraint(Sketcher.Constraint("DistanceX", -1, 1, 0, 2, Q("8.1 mm")))
sketch9.addConstraint(Sketcher.Constraint("DistanceY", 5, 2, 0, 2, Q("1.4 mm")))
sketch9.addConstraint(Sketcher.Constraint("DistanceY", 1, 1, 1, 2, Q("3.356672 mm")))
sketch9.addConstraint(Sketcher.Constraint("DistanceY", 0, 2, -1, 1, Q("0.508025 mm")))
pocket3 = body.newObject("PartDesign::Pocket", "Pocket002")
pocket3.Profile = sketch9
pocket3.Type = "ThroughAll"

sketch10 = body.newObject("Sketcher::SketchObject", "Sketch009")
sketch10.AttachmentSupport = (doc.getObject("XY_Plane"), [""])
sketch10.MapMode = "FlatFace"
sketch10.AttachmentOffset = App.Placement(Vector(0, 0, -0.508025), App.Rotation())
sketch10.addGeometry(Part.LineSegment(Vector(3.5, 7.5, 0), Vector(3.5, 8.1, 0)), False)
sketch10.addGeometry(Part.LineSegment(Vector(3.5, 8.1, 0), Vector(0.2, 8.1, 0)), False)
sketch10.addGeometry(Part.LineSegment(Vector(0.2, 8.1, 0), Vector(3.5, 7.5, 0)), False)
sketch10.addGeometry(Part.LineSegment(Vector(-4.6, 7.5, 0), Vector(-1.2, 8.1, 0)), False)
sketch10.addGeometry(Part.LineSegment(Vector(-1.2, 8.1, 0), Vector(-4.6, 8.1, 0)), False)
sketch10.addGeometry(Part.LineSegment(Vector(-4.6, 8.1, 0), Vector(-4.6, 7.5, 0)), False)
sketch10.addConstraint(Sketcher.Constraint("Coincident", 0, 2, 1, 1))
sketch10.addConstraint(Sketcher.Constraint("Coincident", 1, 2, 2, 1))
sketch10.addConstraint(Sketcher.Constraint("Coincident", 2, 2, 0, 1))
sketch10.addConstraint(Sketcher.Constraint("Coincident", 3, 2, 4, 1))
sketch10.addConstraint(Sketcher.Constraint("Coincident", 4, 2, 5, 1))
sketch10.addConstraint(Sketcher.Constraint("Coincident", 5, 2, 3, 1))
sketch10.addConstraint(Sketcher.Constraint("Vertical", 0))
sketch10.addConstraint(Sketcher.Constraint("Horizontal", 1))
sketch10.addConstraint(Sketcher.Constraint("Horizontal", 4))
sketch10.addConstraint(Sketcher.Constraint("Vertical", 5))
sketch10.addConstraint(Sketcher.Constraint("Horizontal", 1, 2, 3, 2))
sketch10.addConstraint(Sketcher.Constraint("Horizontal", 2, 2, 5, 2))
sketch10.addConstraint(Sketcher.Constraint("Equal", 1, 4))
sketch10.addConstraint(Sketcher.Constraint("DistanceY", 0, 1, 0, 2, Q("0.6 mm")))
sketch10.addConstraint(Sketcher.Constraint("DistanceY", -1, 1, 0, 2, Q("8.1 mm")))
sketch10.addConstraint(Sketcher.Constraint("DistanceX", 3, 2, 1, 2, Q("1.4 mm")))
sketch10.addConstraint(Sketcher.Constraint("DistanceX", 1, 2, 1, 1, Q("3.335762 mm")))
sketch10.addConstraint(Sketcher.Constraint("DistanceX", -1, 1, 0, 2, Q("3.521469 mm")))
pocket4 = body.newObject("PartDesign::Pocket", "Pocket003")
pocket4.Profile = sketch10
pocket4.Type = "ThroughAll"

sketch11 = body.newObject("Sketcher::SketchObject", "Sketch010")
sketch11.AttachmentSupport = (doc.getObject("XZ_Plane"), [""])
sketch11.MapMode = "FlatFace"
sketch11.addGeometry(Part.Circle(Vector(-0.5, -1.2, 0), Vector(0, 0, 1), 6.1), False)
sketch11.addGeometry(Part.Circle(Vector(-0.5, -1.2, 0), Vector(0, 0, 1), 4.9), False)
sketch11.addConstraint(Sketcher.Constraint("Coincident", 1, 3, 0, 3))
sketch11.addConstraint(Sketcher.Constraint("Diameter", 0, Q("12.236795 mm")))
sketch11.addConstraint(Sketcher.Constraint("Diameter", 1, Q("9.836795 mm")))
sketch11.addConstraint(Sketcher.Constraint("DistanceX", 0, 3, -1, 1, Q("0.514294 mm")))
sketch11.addConstraint(Sketcher.Constraint("DistanceY", 0, 3, -1, 1, Q("1.208025 mm")))
pad7 = body.newObject("PartDesign::Pad", "Pad006")
pad7.Profile = sketch11
pad7.Length = 1.2

sketch12 = body.newObject("Sketcher::SketchObject", "Sketch011")
sketch12.AttachmentSupport = (doc.getObject("XZ_Plane"), [""])
sketch12.MapMode = "FlatFace"
sketch12.addGeometry(Part.LineSegment(Vector(3.4, -4.2, 0), Vector(3.4, -5.9, 0)), False)
sketch12.addGeometry(Part.ArcOfCircle(Part.Circle(Vector(-0.5, -1.2, 0), Vector(0, 0, 1), 6.1), math.radians(-50), math.radians(51)), False)
sketch12.addGeometry(Part.LineSegment(Vector(3.4, 3.5, 0), Vector(3.4, -4.2, 0)), False)
sketch12.addConstraint(Sketcher.Constraint("Coincident", 0, 2, 1, 1))
sketch12.addConstraint(Sketcher.Constraint("Coincident", 1, 2, 2, 1))
sketch12.addConstraint(Sketcher.Constraint("Coincident", 2, 2, 0, 1))
sketch12.addConstraint(Sketcher.Constraint("Vertical", 2))
sketch12.addConstraint(Sketcher.Constraint("Radius", 1, Q("6.118398 mm")))
sketch12.addConstraint(Sketcher.Constraint("DistanceY", 2, 2, 2, 1, Q("7.755786 mm")))
sketch12.addConstraint(Sketcher.Constraint("DistanceY", 0, 2, -1, 1, Q("5.897382 mm")))
sketch12.addConstraint(Sketcher.Constraint("DistanceX", 1, 3, 1, 2, Q("3.878871 mm")))
sketch12.addConstraint(Sketcher.Constraint("DistanceY", 0, 2, 2, 2, Q("1.665288 mm")))
sketch12.addConstraint(Sketcher.Constraint("DistanceX", 1, 3, -1, 1, Q("0.514294 mm")))
pocket5 = body.newObject("PartDesign::Pocket", "Pocket004")
pocket5.Profile = sketch12
pocket5.Length = 1.2
pocket5.Reversed = True

doc.recompute()
